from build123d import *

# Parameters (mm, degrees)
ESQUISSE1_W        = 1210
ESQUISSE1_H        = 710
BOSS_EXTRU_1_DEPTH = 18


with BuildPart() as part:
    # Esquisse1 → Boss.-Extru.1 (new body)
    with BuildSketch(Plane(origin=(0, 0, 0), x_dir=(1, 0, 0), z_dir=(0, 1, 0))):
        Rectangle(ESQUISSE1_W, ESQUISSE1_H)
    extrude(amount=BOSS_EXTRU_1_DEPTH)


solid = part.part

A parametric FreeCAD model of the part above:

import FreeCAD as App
import Part
import Sketcher

doc = App.newDocument("Part")
body = doc.addObject("PartDesign::Body", "Body")

# Sketch on XZ plane
sketch1 = doc.addObject("Sketcher::SketchObject", "Sketch")
body.addObject(sketch1)
sketch1.AttachmentSupport = (doc.XZ_Plane, [""])
sketch1.MapMode = "FlatFace"
sketch1.addGeometry([
    Part.LineSegment(App.Vector(-605, -355, 0), App.Vector(-605, 355, 0)),
    Part.LineSegment(App.Vector(-605, 355, 0), App.Vector(605, 355, 0)),
    Part.LineSegment(App.Vector(605, 355, 0), App.Vector(605, -355, 0)),
    Part.LineSegment(App.Vector(605, -355, 0), App.Vector(-605, -355, 0)),
], False)
sketch1.addConstraint([
    Sketcher.Constraint("Coincident", 0, 2, 1, 1),
    Sketcher.Constraint("Coincident", 1, 2, 2, 1),
    Sketcher.Constraint("Coincident", 2, 2, 3, 1),
    Sketcher.Constraint("Coincident", 3, 2, 0, 1),
    Sketcher.Constraint("Vertical", 0),
    Sketcher.Constraint("Horizontal", 1),
    Sketcher.Constraint("Vertical", 2),
    Sketcher.Constraint("Horizontal", 3),
    Sketcher.Constraint("Symmetric", 0, 2, 2, 2, -1, 1),
    Sketcher.Constraint("DistanceX", 1, 1, 1, 2, 1210.0),
    Sketcher.Constraint("DistanceY", 0, 1, 0, 2, 710.0),
])
pad1 = doc.addObject("PartDesign::Pad", "Pad")
body.addObject(pad1)
pad1.Profile = sketch1
pad1.Length = 18
pad1.Reversed = True

doc.recompute()
